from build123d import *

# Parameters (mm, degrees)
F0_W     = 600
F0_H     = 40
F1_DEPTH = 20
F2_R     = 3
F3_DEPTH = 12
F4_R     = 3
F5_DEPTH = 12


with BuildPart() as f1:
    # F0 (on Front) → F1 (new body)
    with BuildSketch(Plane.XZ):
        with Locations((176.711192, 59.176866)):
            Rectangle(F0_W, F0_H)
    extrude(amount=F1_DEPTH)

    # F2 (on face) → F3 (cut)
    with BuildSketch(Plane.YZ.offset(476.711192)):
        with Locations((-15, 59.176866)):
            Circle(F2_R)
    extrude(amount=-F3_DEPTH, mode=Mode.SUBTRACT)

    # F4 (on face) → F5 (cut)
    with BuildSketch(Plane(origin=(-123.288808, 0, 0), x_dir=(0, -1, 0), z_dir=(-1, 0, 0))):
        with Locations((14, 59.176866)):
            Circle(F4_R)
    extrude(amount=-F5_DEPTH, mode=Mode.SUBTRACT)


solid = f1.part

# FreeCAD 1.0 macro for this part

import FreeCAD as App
import Part
import Sketcher

doc = App.newDocument("Part")
body = doc.addObject("PartDesign::Body", "Body")

sketch1 = body.newObject("Sketcher::SketchObject", "Sketch")
sketch1.AttachmentSupport = (doc.getObject("XZ_Plane"), [""])
sketch1.MapMode = "FlatFace"
sketch1.addGeometry([
    Part.LineSegment(App.Vector(-123, 79, 0), App.Vector(-123, 39, 0)),
    Part.LineSegment(App.Vector(-123, 39, 0), App.Vector(477, 39, 0)),
    Part.LineSegment(App.Vector(477, 39, 0), App.Vector(477, 79, 0)),
    Part.LineSegment(App.Vector(477, 79, 0), App.Vector(-123, 79, 0)),
], False)
sketch1.addConstraint([
    Sketcher.Constraint("Coincident", 0, 2, 1, 1),
    Sketcher.Constraint("Coincident", 1, 2, 2, 1),
    Sketcher.Constraint("Coincident", 2, 2, 3, 1),
    Sketcher.Constraint("Coincident", 3, 2, 0, 1),
    Sketcher.Constraint("Vertical", 0),
    Sketcher.Constraint("Horizontal", 1),
    Sketcher.Constraint("Vertical", 2),
    Sketcher.Constraint("Horizontal", 3),
    Sketcher.Constraint("DistanceX", 1, 1, 1, 2, 600.0),
    Sketcher.Constraint("DistanceY", 0, 2, 0, 1, 40.0),
    Sketcher.Constraint("DistanceX", 0, 2, -1, 1, 123.288808),
    Sketcher.Constraint("DistanceY", -1, 1, 0, 2, 39.176866),
])
pad1 = body.newObject("PartDesign::Pad", "Pad")
pad1.Profile = sketch1
pad1.Length = 20

sketch2 = body.newObject("Sketcher::SketchObject", "Sketch001")
sketch2.AttachmentSupport = (doc.getObject("YZ_Plane"), [""])
sketch2.MapMode = "FlatFace"
sketch2.AttachmentOffset = App.Placement(App.Vector(0, 0, 476.711192), App.Rotation())
sketch2.addGeometry(Part.Circle(App.Vector(-15, 59.2, 0), App.Vector(0, 0, 1), 3), False)
sketch2.addConstraint([
    Sketcher.Constraint("Diameter", 0, 6.0),
    Sketcher.Constraint("DistanceX", 0, 3, -1, 1, 15.0),
    Sketcher.Constraint("DistanceY", -1, 1, 0, 3, 59.176866),
])
pocket1 = body.newObject("PartDesign::Pocket", "Pocket")
pocket1.Profile = sketch2
pocket1.Length = 12

sketch3 = body.newObject("Sketcher::SketchObject", "Sketch002")
sketch3.AttachmentSupport = (doc.getObject("YZ_Plane"), [""])
sketch3.MapMode = "FlatFace"
sketch3.AttachmentOffset = App.Placement(App.Vector(0, 0, -123.288808), App.Rotation())
sketch3.addGeometry(Part.Circle(App.Vector(-14, 59.2, 0), App.Vector(0, 0, 1), 3), False)
sketch3.addConstraint([
    Sketcher.Constraint("Diameter", 0, 6.0),
    Sketcher.Constraint("DistanceX", 0, 3, -1, 1, 14.0),
    Sketcher.Constraint("DistanceY", -1, 1, 0, 3, 59.176866),
])
pocket2 = body.newObject("PartDesign::Pocket", "Pocket001")
pocket2.Profile = sketch3
pocket2.Length = 12
pocket2.Reversed = True

doc.recompute()
